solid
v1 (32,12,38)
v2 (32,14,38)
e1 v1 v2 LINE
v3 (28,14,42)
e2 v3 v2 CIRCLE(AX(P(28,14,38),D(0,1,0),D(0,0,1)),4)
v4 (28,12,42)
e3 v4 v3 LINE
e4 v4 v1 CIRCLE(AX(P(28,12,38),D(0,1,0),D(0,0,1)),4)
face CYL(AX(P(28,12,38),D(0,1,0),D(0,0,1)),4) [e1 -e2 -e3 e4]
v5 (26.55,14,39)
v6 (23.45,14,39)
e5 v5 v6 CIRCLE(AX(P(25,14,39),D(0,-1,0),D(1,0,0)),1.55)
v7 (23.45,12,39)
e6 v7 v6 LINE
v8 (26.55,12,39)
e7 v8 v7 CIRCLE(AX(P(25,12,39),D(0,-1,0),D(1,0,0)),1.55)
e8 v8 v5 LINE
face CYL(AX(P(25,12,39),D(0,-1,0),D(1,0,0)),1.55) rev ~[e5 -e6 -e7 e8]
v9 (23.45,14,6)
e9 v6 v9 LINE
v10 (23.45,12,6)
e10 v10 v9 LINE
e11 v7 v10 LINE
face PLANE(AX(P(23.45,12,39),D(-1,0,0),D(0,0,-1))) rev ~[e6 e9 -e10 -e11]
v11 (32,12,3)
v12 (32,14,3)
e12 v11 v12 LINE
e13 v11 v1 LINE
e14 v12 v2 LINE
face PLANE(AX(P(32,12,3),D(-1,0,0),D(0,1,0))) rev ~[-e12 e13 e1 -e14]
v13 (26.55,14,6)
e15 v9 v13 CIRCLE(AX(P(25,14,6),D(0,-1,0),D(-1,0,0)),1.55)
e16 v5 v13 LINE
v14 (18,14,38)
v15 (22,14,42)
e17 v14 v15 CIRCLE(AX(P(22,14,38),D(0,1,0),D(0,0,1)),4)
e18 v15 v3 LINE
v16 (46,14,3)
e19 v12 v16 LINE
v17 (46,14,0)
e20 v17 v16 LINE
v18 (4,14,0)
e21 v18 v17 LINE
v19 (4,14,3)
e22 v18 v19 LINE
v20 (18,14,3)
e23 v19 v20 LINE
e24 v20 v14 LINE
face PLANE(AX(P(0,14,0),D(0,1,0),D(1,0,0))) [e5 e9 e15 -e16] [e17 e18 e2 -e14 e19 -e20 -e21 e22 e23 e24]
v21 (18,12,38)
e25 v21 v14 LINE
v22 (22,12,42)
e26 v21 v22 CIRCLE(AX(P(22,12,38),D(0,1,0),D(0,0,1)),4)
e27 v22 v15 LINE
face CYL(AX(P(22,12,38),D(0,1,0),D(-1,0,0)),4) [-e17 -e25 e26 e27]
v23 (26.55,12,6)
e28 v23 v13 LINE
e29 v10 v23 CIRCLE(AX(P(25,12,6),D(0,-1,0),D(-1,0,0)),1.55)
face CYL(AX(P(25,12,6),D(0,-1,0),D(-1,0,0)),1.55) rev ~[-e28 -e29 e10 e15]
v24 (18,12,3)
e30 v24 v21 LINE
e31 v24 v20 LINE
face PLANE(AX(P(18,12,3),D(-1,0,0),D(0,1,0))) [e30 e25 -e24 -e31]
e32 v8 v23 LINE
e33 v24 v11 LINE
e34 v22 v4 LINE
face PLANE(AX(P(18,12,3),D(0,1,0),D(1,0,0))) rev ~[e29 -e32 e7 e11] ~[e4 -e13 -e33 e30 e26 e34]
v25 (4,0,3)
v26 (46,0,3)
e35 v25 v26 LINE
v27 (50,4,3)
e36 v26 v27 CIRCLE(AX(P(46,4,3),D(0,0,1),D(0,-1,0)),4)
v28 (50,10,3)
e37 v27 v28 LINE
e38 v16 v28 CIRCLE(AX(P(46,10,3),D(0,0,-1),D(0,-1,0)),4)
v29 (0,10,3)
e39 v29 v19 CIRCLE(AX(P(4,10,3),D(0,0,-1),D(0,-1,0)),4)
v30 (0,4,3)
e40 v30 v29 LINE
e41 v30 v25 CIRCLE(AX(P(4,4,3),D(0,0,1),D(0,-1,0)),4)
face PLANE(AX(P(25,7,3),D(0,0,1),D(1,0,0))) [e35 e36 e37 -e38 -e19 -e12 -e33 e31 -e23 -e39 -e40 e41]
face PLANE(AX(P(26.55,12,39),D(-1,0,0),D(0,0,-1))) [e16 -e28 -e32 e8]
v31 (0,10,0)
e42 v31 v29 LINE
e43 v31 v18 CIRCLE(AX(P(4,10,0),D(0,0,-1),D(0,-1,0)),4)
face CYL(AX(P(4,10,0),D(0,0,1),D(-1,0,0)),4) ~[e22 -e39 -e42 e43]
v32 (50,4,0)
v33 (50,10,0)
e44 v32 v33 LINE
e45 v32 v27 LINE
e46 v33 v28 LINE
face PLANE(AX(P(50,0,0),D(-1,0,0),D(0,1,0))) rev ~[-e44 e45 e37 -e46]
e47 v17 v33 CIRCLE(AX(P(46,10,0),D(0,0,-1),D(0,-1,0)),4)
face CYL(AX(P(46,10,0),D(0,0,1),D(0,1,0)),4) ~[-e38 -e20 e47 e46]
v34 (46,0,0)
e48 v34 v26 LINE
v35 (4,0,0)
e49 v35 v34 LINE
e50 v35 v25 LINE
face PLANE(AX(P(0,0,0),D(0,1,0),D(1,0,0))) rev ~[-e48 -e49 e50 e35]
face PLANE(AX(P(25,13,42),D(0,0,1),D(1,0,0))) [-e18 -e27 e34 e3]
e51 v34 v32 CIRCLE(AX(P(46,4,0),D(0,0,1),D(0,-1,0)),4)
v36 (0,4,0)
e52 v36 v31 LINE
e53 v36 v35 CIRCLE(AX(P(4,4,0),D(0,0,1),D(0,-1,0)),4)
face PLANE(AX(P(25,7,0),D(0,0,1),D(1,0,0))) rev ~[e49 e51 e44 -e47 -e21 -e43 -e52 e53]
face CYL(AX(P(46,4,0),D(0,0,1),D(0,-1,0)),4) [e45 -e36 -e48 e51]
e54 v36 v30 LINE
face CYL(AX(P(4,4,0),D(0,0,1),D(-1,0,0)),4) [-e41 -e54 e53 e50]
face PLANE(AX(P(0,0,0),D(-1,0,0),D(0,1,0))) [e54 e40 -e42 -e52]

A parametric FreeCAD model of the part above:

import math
import FreeCAD as App
import Part
import Sketcher

V = App.Vector
Q = App.Units.Quantity


def edges_at(feature, points):
    """Names of the edges that pass closest to the given points."""
    edges = feature.Shape.Edges
    near = lambda p: min(range(len(edges)), key=lambda i: edges[i].distToShape(Part.Vertex(*p))[0])
    return sorted({f"Edge{near(p) + 1}" for p in points})

doc = App.newDocument("Part")
params = doc.addObject("Spreadsheet::Sheet", "Params")
for row, (alias, value) in enumerate([
    ("sketch1_width", "50 mm"),
    ("sketch1_height", "14 mm"),
    ("pad1_length", "3 mm"),
    ("sketch2_width", "14 mm"),
    ("sketch2_height", "2 mm"),
    ("pad2_length", "39 mm"),
    ("sketch3_height", "33 mm"),
    ("sketch3_radius", "1.55 mm"),
    ("pocket1_length", "2 mm"),
    ("fillet_radius", "4 mm"),
], start=1):
    params.set(f"A{row}", alias)
    params.set(f"B{row}", "=" + value)
    params.setAlias(f"B{row}", alias)

body = doc.addObject("PartDesign::Body", "Body")

sketch1 = body.newObject("Sketcher::SketchObject", "Sketch")
sketch1.AttachmentSupport = (doc.getObject("XY_Plane"), [""])
sketch1.MapMode = "FlatFace"
sketch1.addGeometry(Part.LineSegment(V(0, 14, 0), V(0, 0, 0)), False)
sketch1.addGeometry(Part.LineSegment(V(0, 0, 0), V(50, 0, 0)), False)
sketch1.addGeometry(Part.LineSegment(V(50, 0, 0), V(50, 14, 0)), False)
sketch1.addGeometry(Part.LineSegment(V(50, 14, 0), V(0, 14, 0)), False)
sketch1.addConstraint(Sketcher.Constraint("Coincident", 0, 2, 1, 1))
sketch1.addConstraint(Sketcher.Constraint("Coincident", 1, 2, 2, 1))
sketch1.addConstraint(Sketcher.Constraint("Coincident", 2, 2, 3, 1))
sketch1.addConstraint(Sketcher.Constraint("Coincident", 3, 2, 0, 1))
sketch1.addConstraint(Sketcher.Constraint("Vertical", 0))
sketch1.addConstraint(Sketcher.Constraint("Horizontal", 1))
sketch1.addConstraint(Sketcher.Constraint("Vertical", 2))
sketch1.addConstraint(Sketcher.Constraint("Horizontal", 3))
sketch1.addConstraint(Sketcher.Constraint("Coincident", 0, 2, -1, 1))
sketch1.addConstraint(Sketcher.Constraint("DistanceX", 1, 1, 1, 2, Q("50 mm")))
sketch1.addConstraint(Sketcher.Constraint("DistanceY", 0, 2, 0, 1, Q("14 mm")))
sketch1.setExpression("Constraints[9]", "Params.sketch1_width")
sketch1.setExpression("Constraints[10]", "Params.sketch1_height")
pad1 = body.newObject("PartDesign::Pad", "Pad")
pad1.Profile = sketch1
pad1.setExpression("Length", "Params.pad1_length")

sketch2 = body.newObject("Sketcher::SketchObject", "Sketch001")
sketch2.AttachmentSupport = (doc.getObject("XY_Plane"), [""])
sketch2.MapMode = "FlatFace"
sketch2.AttachmentOffset = App.Placement(V(0, 0, 3), App.Rotation())
sketch2.addGeometry(Part.LineSegment(V(18, 14, 0), V(18, 12, 0)), False)
sketch2.addGeometry(Part.LineSegment(V(18, 12, 0), V(32, 12, 0)), False)
sketch2.addGeometry(Part.LineSegment(V(32, 12, 0), V(32, 14, 0)), False)
sketch2.addGeometry(Part.LineSegment(V(32, 14, 0), V(18, 14, 0)), False)
sketch2.addConstraint(Sketcher.Constraint("Coincident", 0, 2, 1, 1))
sketch2.addConstraint(Sketcher.Constraint("Coincident", 1, 2, 2, 1))
sketch2.addConstraint(Sketcher.Constraint("Coincident", 2, 2, 3, 1))
sketch2.addConstraint(Sketcher.Constraint("Coincident", 3, 2, 0, 1))
sketch2.addConstraint(Sketcher.Constraint("Vertical", 0))
sketch2.addConstraint(Sketcher.Constraint("Horizontal", 1))
sketch2.addConstraint(Sketcher.Constraint("Vertical", 2))
sketch2.addConstraint(Sketcher.Constraint("Horizontal", 3))
sketch2.addConstraint(Sketcher.Constraint("DistanceX", 1, 1, 1, 2, Q("14 mm")))
sketch2.addConstraint(Sketcher.Constraint("DistanceY", 0, 2, 0, 1, Q("2 mm")))
sketch2.addConstraint(Sketcher.Constraint("DistanceX", -1, 1, 0, 2, Q("18 mm")))
sketch2.addConstraint(Sketcher.Constraint("DistanceY", -1, 1, 0, 2, Q("12 mm")))
sketch2.setExpression("Constraints[8]", "Params.sketch2_width")
sketch2.setExpression("Constraints[9]", "Params.sketch2_height")
pad2 = body.newObject("PartDesign::Pad", "Pad001")
pad2.Profile = sketch2
pad2.setExpression("Length", "Params.pad2_length")

sketch3 = body.newObject("Sketcher::SketchObject", "Sketch002")
sketch3.AttachmentSupport = (doc.getObject("XZ_Plane"), [""])
sketch3.MapMode = "FlatFace"
sketch3.AttachmentOffset = App.Placement(V(0, 0, -12), App.Rotation())
sketch3.addGeometry(Part.ArcOfCircle(Part.Circle(V(25, 39, 0), V(0, 0, 1), 1.6), math.radians(0), math.radians(180)), False)
sketch3.addGeometry(Part.LineSegment(V(23.4, 39, 0), V(23.4, 6, 0)), False)
sketch3.addGeometry(Part.ArcOfCircle(Part.Circle(V(25, 6, 0), V(0, 0, 1), 1.6), math.radians(180), math.radians(360)), False)
sketch3.addGeometry(Part.LineSegment(V(26.6, 6, 0), V(26.6, 39, 0)), False)
sketch3.addConstraint(Sketcher.Constraint("Tangent", 0, 2, 1, 1))
sketch3.addConstraint(Sketcher.Constraint("Tangent", 1, 2, 2, 1))
sketch3.addConstraint(Sketcher.Constraint("Tangent", 2, 2, 3, 1))
sketch3.addConstraint(Sketcher.Constraint("Tangent", 3, 2, 0, 1))
sketch3.addConstraint(Sketcher.Constraint("Vertical", 1))
sketch3.addConstraint(Sketcher.Constraint("Vertical", 3))
sketch3.addConstraint(Sketcher.Constraint("DistanceY", 1, 2, 1, 1, Q("33 mm")))
sketch3.addConstraint(Sketcher.Constraint("Radius", 0, Q("1.55 mm")))
sketch3.addConstraint(Sketcher.Constraint("DistanceX", -1, 1, 0, 3, Q("25 mm")))
sketch3.addConstraint(Sketcher.Constraint("DistanceY", -1, 1, 0, 3, Q("39 mm")))
sketch3.setExpression("Constraints[6]", "Params.sketch3_height")
sketch3.setExpression("Constraints[7]", "Params.sketch3_radius")
pocket1 = body.newObject("PartDesign::Pocket", "Pocket")
pocket1.Profile = sketch3
pocket1.setExpression("Length", "Params.pocket1_length")
doc.recompute()

fillet = body.newObject("PartDesign::Fillet", "Fillet")
fillet.Base = (pocket1, edges_at(pocket1, [
    (0, 0, 1.5),
    (50, 0, 1.5),
    (18, 13, 42),
    (32, 13, 42),
    (0, 14, 1.5),
    (50, 14, 1.5),
]))
fillet.setExpression("Radius", "Params.fillet_radius")

doc.recompute()
